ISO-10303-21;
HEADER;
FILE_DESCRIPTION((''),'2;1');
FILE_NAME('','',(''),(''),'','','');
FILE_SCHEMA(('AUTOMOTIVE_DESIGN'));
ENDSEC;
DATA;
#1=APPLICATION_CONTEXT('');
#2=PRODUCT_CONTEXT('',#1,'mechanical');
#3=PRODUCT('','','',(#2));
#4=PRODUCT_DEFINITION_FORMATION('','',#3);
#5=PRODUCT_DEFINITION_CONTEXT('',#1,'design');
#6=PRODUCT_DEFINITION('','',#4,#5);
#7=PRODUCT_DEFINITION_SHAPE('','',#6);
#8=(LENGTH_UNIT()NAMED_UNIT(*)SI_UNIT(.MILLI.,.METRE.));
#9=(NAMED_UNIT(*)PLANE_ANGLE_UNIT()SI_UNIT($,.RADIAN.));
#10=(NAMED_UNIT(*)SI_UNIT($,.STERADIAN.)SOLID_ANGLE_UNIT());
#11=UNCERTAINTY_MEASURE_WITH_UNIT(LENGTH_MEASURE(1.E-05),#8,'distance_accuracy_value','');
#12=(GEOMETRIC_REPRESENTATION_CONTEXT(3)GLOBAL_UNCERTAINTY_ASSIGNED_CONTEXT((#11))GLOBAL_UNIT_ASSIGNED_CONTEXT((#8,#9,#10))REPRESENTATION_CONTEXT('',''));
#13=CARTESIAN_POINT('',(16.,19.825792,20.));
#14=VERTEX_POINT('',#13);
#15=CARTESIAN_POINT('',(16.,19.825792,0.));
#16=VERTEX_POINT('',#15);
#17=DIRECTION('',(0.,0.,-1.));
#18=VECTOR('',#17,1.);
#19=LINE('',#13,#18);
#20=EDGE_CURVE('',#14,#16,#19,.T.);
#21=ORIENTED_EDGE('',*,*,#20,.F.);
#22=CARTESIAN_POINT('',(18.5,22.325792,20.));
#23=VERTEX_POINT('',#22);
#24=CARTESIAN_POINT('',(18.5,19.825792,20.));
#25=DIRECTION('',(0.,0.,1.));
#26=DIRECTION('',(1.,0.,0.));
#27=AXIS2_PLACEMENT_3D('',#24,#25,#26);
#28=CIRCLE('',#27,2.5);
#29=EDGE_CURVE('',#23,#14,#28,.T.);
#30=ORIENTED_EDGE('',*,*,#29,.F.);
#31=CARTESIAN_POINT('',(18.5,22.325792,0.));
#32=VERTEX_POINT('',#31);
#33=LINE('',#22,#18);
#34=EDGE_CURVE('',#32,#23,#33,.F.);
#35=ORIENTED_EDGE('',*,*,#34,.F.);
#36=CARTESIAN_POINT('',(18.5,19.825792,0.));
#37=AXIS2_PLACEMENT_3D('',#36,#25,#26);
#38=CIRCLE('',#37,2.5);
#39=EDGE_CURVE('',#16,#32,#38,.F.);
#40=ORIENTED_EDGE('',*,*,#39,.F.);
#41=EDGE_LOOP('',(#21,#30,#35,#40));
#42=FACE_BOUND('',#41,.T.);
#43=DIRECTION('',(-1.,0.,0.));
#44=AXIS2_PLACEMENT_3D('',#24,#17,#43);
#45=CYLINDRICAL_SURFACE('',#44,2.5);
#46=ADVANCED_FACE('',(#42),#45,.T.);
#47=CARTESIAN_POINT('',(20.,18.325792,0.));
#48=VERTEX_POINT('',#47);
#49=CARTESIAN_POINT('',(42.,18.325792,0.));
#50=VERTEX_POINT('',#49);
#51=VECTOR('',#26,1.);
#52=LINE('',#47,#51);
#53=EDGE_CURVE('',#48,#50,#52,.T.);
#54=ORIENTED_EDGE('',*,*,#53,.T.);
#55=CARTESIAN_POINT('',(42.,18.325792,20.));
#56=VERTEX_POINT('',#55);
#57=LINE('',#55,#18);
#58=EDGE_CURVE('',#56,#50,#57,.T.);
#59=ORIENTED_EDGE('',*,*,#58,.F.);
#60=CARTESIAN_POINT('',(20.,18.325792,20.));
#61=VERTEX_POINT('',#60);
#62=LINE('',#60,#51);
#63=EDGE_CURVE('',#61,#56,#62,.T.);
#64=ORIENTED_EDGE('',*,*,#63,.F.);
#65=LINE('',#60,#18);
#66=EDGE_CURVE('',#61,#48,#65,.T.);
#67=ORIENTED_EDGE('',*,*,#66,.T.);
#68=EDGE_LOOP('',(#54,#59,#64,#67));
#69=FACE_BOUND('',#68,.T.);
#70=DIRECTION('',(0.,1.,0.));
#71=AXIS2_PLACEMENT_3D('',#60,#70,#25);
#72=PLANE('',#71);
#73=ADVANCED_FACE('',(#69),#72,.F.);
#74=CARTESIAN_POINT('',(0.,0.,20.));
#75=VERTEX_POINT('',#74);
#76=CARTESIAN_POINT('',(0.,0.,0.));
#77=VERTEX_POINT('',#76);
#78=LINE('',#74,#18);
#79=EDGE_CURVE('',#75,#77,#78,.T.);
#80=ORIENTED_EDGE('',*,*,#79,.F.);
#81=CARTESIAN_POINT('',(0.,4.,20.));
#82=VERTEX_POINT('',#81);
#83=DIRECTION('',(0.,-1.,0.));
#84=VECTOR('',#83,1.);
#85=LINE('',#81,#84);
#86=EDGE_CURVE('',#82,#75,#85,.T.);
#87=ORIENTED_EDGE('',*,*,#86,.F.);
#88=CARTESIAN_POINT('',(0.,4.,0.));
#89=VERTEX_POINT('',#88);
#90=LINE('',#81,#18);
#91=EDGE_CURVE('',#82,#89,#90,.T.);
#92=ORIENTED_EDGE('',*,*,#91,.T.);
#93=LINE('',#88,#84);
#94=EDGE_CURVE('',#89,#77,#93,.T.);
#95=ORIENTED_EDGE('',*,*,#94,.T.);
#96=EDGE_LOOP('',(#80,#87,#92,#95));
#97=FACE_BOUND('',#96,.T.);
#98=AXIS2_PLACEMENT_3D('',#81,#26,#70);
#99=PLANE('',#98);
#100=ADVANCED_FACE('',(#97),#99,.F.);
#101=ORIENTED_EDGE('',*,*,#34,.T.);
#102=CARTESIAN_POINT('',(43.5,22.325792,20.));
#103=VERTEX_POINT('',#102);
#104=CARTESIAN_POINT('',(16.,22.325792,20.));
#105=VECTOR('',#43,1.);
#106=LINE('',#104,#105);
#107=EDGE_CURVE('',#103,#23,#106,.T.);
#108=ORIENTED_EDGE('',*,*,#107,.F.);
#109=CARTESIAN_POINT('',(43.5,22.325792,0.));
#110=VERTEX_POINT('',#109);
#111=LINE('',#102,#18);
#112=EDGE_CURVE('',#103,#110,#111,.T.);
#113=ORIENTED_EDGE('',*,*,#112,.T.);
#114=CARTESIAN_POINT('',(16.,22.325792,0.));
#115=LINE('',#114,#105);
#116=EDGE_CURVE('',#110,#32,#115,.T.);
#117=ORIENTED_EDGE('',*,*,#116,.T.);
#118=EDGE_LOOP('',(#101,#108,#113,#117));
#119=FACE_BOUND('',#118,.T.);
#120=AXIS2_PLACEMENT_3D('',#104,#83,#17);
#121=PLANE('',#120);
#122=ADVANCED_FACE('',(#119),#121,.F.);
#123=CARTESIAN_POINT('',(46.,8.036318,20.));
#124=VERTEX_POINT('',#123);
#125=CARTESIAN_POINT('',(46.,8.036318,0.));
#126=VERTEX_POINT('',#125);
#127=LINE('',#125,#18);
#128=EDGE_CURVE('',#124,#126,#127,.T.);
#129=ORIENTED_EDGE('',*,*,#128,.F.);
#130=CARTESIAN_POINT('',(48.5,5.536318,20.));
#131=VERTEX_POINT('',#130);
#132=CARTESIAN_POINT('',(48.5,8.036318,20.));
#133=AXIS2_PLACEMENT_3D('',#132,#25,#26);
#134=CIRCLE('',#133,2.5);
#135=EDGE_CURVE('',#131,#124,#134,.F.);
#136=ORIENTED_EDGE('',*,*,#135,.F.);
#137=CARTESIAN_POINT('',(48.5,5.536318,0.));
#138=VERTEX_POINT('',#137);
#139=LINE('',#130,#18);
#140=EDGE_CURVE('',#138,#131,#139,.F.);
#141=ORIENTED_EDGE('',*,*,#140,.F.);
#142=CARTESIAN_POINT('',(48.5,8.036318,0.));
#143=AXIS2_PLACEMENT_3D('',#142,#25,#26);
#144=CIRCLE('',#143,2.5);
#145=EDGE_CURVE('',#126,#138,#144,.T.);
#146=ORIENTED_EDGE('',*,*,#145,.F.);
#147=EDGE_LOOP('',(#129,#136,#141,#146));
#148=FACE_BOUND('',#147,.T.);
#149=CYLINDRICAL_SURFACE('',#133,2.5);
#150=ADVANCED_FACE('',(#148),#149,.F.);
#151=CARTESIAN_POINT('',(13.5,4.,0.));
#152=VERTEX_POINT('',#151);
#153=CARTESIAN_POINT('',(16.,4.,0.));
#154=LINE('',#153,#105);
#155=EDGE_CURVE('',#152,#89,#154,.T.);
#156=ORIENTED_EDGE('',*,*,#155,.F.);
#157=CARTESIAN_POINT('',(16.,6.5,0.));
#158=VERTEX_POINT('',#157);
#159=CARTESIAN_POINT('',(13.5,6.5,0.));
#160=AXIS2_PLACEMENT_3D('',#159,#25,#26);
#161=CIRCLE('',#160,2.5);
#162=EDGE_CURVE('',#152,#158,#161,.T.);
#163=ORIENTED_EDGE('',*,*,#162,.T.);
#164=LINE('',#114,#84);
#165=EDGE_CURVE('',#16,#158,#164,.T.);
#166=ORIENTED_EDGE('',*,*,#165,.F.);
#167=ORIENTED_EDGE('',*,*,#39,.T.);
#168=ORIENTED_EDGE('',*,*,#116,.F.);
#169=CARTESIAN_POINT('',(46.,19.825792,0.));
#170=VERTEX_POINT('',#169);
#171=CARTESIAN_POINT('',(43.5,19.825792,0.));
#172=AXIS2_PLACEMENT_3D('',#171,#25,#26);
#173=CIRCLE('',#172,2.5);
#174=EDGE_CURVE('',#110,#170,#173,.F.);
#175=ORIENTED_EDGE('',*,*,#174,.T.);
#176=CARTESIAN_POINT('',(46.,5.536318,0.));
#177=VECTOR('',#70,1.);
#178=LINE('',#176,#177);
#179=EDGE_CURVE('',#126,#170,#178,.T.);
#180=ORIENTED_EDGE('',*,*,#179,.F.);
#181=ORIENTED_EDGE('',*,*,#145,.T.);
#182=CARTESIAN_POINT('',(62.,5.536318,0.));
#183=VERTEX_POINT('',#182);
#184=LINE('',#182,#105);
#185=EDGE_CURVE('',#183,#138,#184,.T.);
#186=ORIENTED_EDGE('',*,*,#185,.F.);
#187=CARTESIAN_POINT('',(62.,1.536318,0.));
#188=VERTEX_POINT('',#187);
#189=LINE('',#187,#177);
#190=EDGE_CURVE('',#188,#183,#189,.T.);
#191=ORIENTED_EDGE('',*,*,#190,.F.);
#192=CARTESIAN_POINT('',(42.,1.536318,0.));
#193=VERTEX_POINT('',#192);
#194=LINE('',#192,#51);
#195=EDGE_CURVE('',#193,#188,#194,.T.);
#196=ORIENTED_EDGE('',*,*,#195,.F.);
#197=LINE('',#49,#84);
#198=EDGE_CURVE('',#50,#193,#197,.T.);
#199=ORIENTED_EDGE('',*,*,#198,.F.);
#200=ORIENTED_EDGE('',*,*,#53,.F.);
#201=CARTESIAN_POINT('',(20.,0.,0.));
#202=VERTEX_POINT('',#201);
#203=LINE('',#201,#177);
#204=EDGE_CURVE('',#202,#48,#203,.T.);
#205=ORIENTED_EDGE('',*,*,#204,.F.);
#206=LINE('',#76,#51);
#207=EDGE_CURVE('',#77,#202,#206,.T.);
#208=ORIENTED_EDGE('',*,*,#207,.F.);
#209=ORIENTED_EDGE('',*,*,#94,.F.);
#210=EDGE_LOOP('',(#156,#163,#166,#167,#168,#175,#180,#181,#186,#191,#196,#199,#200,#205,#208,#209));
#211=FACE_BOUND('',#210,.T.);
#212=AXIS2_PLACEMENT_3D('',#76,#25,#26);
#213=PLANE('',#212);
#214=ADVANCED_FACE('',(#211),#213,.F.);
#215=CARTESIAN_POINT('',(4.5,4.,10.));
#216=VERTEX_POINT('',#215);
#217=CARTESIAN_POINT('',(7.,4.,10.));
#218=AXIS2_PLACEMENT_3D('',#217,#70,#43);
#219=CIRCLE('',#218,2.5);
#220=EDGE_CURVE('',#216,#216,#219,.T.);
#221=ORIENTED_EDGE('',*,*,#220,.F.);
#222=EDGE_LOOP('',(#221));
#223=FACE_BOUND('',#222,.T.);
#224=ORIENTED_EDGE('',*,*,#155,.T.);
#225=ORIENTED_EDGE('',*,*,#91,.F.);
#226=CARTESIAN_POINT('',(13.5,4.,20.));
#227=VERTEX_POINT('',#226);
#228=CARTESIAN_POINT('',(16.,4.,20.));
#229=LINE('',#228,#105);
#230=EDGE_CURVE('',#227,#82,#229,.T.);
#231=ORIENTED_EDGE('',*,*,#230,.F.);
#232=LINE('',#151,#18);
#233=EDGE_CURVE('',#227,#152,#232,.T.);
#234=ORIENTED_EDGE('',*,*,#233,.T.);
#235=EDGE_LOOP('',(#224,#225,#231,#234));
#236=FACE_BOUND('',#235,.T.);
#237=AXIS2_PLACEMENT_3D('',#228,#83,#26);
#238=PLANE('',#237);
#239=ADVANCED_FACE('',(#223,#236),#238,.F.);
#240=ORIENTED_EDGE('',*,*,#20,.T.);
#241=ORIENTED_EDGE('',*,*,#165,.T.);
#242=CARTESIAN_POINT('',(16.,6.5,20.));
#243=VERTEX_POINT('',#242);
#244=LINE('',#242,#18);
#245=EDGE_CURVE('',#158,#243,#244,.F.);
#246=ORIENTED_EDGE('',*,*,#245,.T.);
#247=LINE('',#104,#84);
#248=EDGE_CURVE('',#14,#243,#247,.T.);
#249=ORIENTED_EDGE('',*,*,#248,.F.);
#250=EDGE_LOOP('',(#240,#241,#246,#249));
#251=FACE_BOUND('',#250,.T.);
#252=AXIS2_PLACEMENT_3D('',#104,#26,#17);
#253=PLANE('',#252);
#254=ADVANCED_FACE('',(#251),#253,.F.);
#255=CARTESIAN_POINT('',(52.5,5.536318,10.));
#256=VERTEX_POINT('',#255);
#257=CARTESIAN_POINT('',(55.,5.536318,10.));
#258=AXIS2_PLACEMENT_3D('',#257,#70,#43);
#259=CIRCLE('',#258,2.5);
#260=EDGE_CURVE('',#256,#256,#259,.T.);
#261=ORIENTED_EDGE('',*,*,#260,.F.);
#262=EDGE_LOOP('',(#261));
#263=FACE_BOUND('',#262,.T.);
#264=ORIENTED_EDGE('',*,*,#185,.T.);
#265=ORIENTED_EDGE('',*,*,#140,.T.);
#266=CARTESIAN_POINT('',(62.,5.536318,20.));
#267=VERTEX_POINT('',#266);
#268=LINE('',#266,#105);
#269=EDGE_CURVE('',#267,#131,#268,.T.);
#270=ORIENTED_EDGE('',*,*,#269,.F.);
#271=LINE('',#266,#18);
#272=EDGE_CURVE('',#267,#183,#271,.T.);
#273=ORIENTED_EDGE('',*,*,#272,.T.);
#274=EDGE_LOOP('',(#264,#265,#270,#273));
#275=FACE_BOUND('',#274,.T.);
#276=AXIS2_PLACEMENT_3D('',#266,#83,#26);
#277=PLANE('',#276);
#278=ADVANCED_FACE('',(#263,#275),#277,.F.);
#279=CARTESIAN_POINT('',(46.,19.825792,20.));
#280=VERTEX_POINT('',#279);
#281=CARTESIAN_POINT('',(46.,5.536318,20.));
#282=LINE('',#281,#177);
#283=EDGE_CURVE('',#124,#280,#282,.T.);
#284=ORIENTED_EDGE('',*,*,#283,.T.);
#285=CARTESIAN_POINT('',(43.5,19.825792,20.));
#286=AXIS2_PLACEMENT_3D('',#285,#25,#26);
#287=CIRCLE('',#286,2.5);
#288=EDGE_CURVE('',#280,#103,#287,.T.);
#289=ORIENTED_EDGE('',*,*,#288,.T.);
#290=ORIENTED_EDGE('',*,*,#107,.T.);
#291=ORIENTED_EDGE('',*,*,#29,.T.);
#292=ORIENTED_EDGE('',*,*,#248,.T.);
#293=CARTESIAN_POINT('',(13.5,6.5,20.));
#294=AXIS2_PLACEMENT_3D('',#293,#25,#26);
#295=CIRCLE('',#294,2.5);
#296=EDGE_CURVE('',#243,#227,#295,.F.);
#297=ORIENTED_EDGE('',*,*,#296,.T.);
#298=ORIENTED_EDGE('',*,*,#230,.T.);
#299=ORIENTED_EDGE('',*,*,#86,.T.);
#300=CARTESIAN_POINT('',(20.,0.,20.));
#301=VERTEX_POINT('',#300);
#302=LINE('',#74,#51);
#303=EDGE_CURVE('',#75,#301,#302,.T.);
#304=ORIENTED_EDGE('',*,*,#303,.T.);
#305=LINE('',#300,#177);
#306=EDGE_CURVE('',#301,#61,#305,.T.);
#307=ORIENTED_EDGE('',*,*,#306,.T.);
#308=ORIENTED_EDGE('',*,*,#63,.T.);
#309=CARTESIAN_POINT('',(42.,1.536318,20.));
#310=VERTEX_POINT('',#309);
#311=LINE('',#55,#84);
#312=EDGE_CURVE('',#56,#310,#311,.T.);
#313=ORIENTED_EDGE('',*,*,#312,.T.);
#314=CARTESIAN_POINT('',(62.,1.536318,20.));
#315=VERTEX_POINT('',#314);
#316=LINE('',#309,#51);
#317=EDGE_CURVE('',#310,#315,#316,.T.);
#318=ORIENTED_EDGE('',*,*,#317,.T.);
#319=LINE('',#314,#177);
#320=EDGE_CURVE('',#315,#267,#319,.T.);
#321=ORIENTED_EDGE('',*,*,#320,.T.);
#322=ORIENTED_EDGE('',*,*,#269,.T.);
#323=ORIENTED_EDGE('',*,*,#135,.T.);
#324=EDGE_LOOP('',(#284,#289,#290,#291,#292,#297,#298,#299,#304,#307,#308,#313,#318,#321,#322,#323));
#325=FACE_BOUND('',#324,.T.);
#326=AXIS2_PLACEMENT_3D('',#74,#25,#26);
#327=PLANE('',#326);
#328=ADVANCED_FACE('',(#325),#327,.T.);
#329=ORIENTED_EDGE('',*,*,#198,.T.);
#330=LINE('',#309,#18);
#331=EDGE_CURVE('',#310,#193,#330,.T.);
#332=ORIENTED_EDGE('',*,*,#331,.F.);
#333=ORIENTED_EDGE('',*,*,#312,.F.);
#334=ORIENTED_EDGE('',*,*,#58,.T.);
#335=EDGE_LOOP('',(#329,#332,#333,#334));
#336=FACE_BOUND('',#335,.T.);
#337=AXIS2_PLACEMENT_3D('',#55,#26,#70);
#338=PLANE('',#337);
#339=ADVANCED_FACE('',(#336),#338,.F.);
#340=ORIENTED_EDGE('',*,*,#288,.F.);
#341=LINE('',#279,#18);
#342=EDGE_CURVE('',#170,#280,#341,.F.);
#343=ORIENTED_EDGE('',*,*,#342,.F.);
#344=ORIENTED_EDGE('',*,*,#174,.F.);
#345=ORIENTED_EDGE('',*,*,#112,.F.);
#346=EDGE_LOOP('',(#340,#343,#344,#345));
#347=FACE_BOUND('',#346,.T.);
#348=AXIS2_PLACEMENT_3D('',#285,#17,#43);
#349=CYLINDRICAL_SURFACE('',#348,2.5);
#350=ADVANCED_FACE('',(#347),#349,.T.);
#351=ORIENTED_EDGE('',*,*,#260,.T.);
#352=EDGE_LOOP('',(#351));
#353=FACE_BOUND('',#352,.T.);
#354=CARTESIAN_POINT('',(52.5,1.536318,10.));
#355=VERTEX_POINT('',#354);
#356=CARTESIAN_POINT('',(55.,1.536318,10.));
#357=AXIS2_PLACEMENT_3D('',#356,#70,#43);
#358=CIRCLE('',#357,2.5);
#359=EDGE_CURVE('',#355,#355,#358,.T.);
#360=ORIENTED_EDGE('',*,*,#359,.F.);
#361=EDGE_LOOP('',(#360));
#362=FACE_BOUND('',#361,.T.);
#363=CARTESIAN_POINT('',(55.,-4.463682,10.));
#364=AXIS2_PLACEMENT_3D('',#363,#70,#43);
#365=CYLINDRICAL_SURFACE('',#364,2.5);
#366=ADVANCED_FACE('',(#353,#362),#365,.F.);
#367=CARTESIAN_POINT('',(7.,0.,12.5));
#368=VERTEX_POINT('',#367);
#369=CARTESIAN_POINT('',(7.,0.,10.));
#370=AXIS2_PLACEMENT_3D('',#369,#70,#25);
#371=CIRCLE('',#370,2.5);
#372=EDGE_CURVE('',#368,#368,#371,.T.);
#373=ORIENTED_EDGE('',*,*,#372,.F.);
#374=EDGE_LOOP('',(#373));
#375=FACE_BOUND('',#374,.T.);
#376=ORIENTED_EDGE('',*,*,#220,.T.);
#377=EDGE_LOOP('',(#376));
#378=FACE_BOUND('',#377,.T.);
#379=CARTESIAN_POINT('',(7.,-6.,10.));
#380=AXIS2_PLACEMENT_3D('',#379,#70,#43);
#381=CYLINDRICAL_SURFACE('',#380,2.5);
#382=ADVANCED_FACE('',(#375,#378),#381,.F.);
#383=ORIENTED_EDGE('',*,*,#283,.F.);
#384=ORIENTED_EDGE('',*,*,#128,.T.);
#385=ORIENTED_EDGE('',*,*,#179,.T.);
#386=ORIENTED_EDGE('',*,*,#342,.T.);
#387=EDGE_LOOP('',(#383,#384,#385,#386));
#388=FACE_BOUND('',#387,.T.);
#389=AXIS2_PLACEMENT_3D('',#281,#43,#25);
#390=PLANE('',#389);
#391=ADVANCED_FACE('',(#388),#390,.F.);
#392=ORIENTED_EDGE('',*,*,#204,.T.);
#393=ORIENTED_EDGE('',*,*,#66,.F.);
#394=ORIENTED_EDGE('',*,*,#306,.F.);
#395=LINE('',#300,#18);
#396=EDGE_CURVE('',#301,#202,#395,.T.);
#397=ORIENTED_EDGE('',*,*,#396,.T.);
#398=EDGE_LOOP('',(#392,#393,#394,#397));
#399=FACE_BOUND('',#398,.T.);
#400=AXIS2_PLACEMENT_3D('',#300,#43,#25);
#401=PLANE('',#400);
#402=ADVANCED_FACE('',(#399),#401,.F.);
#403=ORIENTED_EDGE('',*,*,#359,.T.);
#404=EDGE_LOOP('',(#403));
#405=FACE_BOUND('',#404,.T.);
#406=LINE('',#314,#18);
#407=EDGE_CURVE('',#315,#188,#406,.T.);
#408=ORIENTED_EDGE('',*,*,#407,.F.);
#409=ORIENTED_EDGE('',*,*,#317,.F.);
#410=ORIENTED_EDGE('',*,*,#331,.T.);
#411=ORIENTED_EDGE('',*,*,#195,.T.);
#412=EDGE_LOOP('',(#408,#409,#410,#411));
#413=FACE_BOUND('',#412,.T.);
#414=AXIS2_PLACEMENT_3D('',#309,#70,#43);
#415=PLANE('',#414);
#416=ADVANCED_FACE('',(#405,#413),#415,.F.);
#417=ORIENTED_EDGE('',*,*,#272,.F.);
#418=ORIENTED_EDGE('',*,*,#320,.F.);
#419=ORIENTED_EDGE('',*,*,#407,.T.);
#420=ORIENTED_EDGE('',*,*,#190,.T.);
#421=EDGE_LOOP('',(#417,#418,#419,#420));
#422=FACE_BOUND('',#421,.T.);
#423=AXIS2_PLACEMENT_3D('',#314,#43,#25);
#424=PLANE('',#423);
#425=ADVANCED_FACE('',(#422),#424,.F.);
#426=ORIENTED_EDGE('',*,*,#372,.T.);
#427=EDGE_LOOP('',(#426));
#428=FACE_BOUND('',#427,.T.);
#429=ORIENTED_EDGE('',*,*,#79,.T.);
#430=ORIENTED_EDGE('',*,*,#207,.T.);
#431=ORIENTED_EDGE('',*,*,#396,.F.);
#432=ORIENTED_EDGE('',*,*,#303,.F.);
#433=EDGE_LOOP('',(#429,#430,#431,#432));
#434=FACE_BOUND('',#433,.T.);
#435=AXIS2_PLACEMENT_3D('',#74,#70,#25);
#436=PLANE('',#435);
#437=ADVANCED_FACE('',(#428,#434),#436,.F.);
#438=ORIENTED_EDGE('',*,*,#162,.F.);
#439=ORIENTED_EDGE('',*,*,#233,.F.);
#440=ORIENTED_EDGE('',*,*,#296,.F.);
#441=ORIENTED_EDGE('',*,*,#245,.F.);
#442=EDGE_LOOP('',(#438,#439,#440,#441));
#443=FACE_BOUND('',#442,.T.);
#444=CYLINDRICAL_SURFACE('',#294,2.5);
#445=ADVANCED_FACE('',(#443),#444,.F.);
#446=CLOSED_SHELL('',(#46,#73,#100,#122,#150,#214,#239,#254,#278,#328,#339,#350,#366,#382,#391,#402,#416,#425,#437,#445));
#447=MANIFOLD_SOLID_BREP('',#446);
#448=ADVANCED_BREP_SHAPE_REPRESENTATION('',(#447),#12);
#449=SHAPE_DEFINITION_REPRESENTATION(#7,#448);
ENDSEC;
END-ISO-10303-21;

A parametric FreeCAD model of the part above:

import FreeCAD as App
import Part
import Sketcher
from FreeCAD import Vector


def edges_at(feature, points):
    """Names of the edges that pass closest to the given points."""
    edges = feature.Shape.Edges
    near = lambda p: min(range(len(edges)), key=lambda i: edges[i].distToShape(Part.Vertex(*p))[0])
    return sorted({f"Edge{near(p) + 1}" for p in points})


def add_polygon(sketch, points):
    """Adds a closed chain of lines whose ends are joined by coincident constraints."""
    first, n = sketch.GeometryCount, len(points)
    for a, b in zip(points, points[1:] + points[:1]):
        sketch.addGeometry(Part.LineSegment(App.Vector(*a, 0), App.Vector(*b, 0)), False)
    for i in range(n):
        sketch.addConstraint(Sketcher.Constraint("Coincident", first + i, 2, first + (i + 1) % n, 1))

doc = App.newDocument("Part")
body = doc.addObject("PartDesign::Body", "Body")

# Sketch on XY plane
sketch1 = doc.addObject("Sketcher::SketchObject", "Sketch")
body.addObject(sketch1)
sketch1.AttachmentSupport = (doc.XY_Plane, [""])
sketch1.MapMode = "FlatFace"
add_polygon(sketch1, [(0, 0), (20, 0), (20, 18.3), (42, 18.3), (42, 1.5), (62, 1.5), (62, 5.5), (46, 5.5), (46, 22.3), (16, 22.3), (16, 4), (0, 4)])  # lines 0-11
sketch1.addConstraint(Sketcher.Constraint("Horizontal", 0))
sketch1.addConstraint(Sketcher.Constraint("Vertical", 1))
sketch1.addConstraint(Sketcher.Constraint("Horizontal", 2))
sketch1.addConstraint(Sketcher.Constraint("Vertical", 3))
sketch1.addConstraint(Sketcher.Constraint("Horizontal", 4))
sketch1.addConstraint(Sketcher.Constraint("Vertical", 5))
sketch1.addConstraint(Sketcher.Constraint("Horizontal", 6))
sketch1.addConstraint(Sketcher.Constraint("Vertical", 7))
sketch1.addConstraint(Sketcher.Constraint("Horizontal", 8))
sketch1.addConstraint(Sketcher.Constraint("Vertical", 9))
sketch1.addConstraint(Sketcher.Constraint("Horizontal", 10))
sketch1.addConstraint(Sketcher.Constraint("Vertical", 11))
sketch1.addConstraint(Sketcher.Constraint("Coincident", 11, 2, -1, 1))
sketch1.addConstraint(Sketcher.Constraint("Equal", 0, 4))
sketch1.addConstraint(Sketcher.Constraint("Equal", 6, 10))
sketch1.addConstraint(Sketcher.Constraint("Equal", 3, 7))
sketch1.addConstraint(Sketcher.Constraint("Equal", 1, 9))
sketch1.addConstraint(Sketcher.Constraint("DistanceX", 0, 1, 0, 2, 20.0))
sketch1.addConstraint(Sketcher.Constraint("DistanceX", 2, 1, 2, 2, 22.0))
sketch1.addConstraint(Sketcher.Constraint("DistanceX", 6, 2, 6, 1, 16.0))
sketch1.addConstraint(Sketcher.Constraint("DistanceY", 5, 1, 5, 2, 4.0))
sketch1.addConstraint(Sketcher.Constraint("DistanceY", 1, 1, 1, 2, 18.325792))
sketch1.addConstraint(Sketcher.Constraint("DistanceY", 3, 2, 3, 1, 16.789474))
pad1 = doc.addObject("PartDesign::Pad", "Pad")
body.addObject(pad1)
pad1.Profile = sketch1
pad1.Length = 20
doc.recompute()

fillet = doc.addObject("PartDesign::Fillet", "Fillet")
body.addObject(fillet)
fillet.Base = (pad1, edges_at(pad1, [
    (16, 4, 10),
    (16, 22.326, 10),
    (46, 22.326, 10),
    (46, 5.536, 10),
]))
fillet.Radius = 2.5

# Sketch on XZ plane
sketch2 = doc.addObject("Sketcher::SketchObject", "Sketch001")
body.addObject(sketch2)
sketch2.AttachmentSupport = (doc.XZ_Plane, [""])
sketch2.MapMode = "FlatFace"
sketch2.AttachmentOffset = App.Placement(Vector(0, 0, -4), App.Rotation())
sketch2.addGeometry(Part.Circle(Vector(7, 10, 0), Vector(0, 0, 1), 2.5), False)
sketch2.addConstraint(Sketcher.Constraint("Diameter", 0, 5.0))
sketch2.addConstraint(Sketcher.Constraint("DistanceX", -1, 1, 0, 3, 7.0))
sketch2.addConstraint(Sketcher.Constraint("DistanceY", -1, 1, 0, 3, 10.0))
pocket1 = doc.addObject("PartDesign::Pocket", "Pocket")
body.addObject(pocket1)
pocket1.Profile = sketch2
pocket1.Length = 10
pocket1.Reversed = True

# Sketch on XZ plane
sketch3 = doc.addObject("Sketcher::SketchObject", "Sketch002")
body.addObject(sketch3)
sketch3.AttachmentSupport = (doc.XZ_Plane, [""])
sketch3.MapMode = "FlatFace"
sketch3.AttachmentOffset = App.Placement(Vector(0, 0, -5.536318), App.Rotation())
sketch3.addGeometry(Part.Circle(Vector(55, 10, 0), Vector(0, 0, 1), 2.5), False)
sketch3.addConstraint(Sketcher.Constraint("Diameter", 0, 5.0))
sketch3.addConstraint(Sketcher.Constraint("DistanceX", -1, 1, 0, 3, 55.0))
sketch3.addConstraint(Sketcher.Constraint("DistanceY", -1, 1, 0, 3, 10.0))
pocket2 = doc.addObject("PartDesign::Pocket", "Pocket001")
body.addObject(pocket2)
pocket2.Profile = sketch3
pocket2.Length = 10
pocket2.Reversed = True

doc.recompute()
